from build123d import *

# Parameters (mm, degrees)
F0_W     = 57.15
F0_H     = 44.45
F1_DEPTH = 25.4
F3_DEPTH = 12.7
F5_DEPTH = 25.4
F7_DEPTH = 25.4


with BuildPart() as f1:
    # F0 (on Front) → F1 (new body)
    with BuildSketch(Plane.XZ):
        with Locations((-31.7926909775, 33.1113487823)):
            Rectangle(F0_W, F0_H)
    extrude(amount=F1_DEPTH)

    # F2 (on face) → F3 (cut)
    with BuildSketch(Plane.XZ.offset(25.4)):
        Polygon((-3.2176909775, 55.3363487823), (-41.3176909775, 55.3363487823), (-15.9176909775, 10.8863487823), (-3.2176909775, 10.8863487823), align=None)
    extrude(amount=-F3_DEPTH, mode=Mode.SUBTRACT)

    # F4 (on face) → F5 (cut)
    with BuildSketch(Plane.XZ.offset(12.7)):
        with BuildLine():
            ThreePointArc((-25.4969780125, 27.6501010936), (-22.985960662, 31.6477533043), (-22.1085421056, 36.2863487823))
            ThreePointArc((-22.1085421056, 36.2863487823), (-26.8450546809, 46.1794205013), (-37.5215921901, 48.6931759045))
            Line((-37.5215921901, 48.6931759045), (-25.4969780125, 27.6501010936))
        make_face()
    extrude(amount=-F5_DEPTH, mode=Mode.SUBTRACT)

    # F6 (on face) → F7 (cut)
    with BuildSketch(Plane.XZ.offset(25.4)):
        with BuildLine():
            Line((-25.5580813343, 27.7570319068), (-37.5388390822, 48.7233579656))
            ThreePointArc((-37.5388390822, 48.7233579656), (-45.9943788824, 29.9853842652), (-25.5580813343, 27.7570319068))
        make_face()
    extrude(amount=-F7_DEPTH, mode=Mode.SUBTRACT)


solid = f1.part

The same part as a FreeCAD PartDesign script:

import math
import FreeCAD as App
import Part
import Sketcher

V = App.Vector
Q = App.Units.Quantity


def add_polygon(sketch, points):
    """Adds a closed chain of lines whose ends are joined by coincident constraints."""
    first, n = sketch.GeometryCount, len(points)
    for a, b in zip(points, points[1:] + points[:1]):
        sketch.addGeometry(Part.LineSegment(App.Vector(*a, 0), App.Vector(*b, 0)), False)
    for i in range(n):
        sketch.addConstraint(Sketcher.Constraint("Coincident", first + i, 2, first + (i + 1) % n, 1))

doc = App.newDocument("Part")
body = doc.addObject("PartDesign::Body", "Body")

# Sketch on XZ plane
sketch1 = doc.addObject("Sketcher::SketchObject", "Sketch")
body.addObject(sketch1)
sketch1.AttachmentSupport = (doc.XZ_Plane, [""])
sketch1.MapMode = "FlatFace"
add_polygon(sketch1, [(-60.367691, 55.336349), (-60.367691, 10.886349), (-3.217691, 10.886349), (-3.217691, 55.336349)])  # lines 0-3
sketch1.addConstraint([
    Sketcher.Constraint("Vertical", 0),
    Sketcher.Constraint("Horizontal", 1),
    Sketcher.Constraint("Vertical", 2),
    Sketcher.Constraint("Horizontal", 3),
    Sketcher.Constraint("DistanceX", 1, 1, 1, 2, Q("2.25 in")),
    Sketcher.Constraint("DistanceY", 0, 2, 0, 1, Q("1.75 in")),
    Sketcher.Constraint("DistanceX", 0, 2, -1, 1, 60.367691),
    Sketcher.Constraint("DistanceY", -1, 1, 0, 2, 10.886349),
])
pad1 = doc.addObject("PartDesign::Pad", "Pad")
body.addObject(pad1)
pad1.Profile = sketch1
pad1.Length = Q("1 in")

# Sketch on XZ plane
sketch2 = doc.addObject("Sketcher::SketchObject", "Sketch001")
body.addObject(sketch2)
sketch2.AttachmentSupport = (doc.XZ_Plane, [""])
sketch2.MapMode = "FlatFace"
sketch2.AttachmentOffset = App.Placement(V(0, 0, 1 * 25.4), App.Rotation())
add_polygon(sketch2, [(-3.217691, 55.336349), (-41.317691, 55.336349), (-15.917691, 10.886349), (-3.217691, 10.886349)])  # lines 0-3
sketch2.addConstraint([
    Sketcher.Constraint("Horizontal", 0),
    Sketcher.Constraint("Horizontal", 2),
    Sketcher.Constraint("Vertical", 3),
    Sketcher.Constraint("DistanceX", 0, 2, 0, 1, Q("1.5 in")),
    Sketcher.Constraint("DistanceX", 2, 1, 2, 2, Q("0.5 in")),
    Sketcher.Constraint("DistanceY", 3, 1, 3, 2, Q("1.75 in")),
    Sketcher.Constraint("DistanceX", 0, 2, -1, 1, 41.317691),
    Sketcher.Constraint("DistanceY", -1, 1, 0, 2, 55.336349),
])
pocket1 = doc.addObject("PartDesign::Pocket", "Pocket")
body.addObject(pocket1)
pocket1.Profile = sketch2
pocket1.Length = Q("0.5 in")

# Sketch on XZ plane
sketch3 = doc.addObject("Sketcher::SketchObject", "Sketch002")
body.addObject(sketch3)
sketch3.AttachmentSupport = (doc.XZ_Plane, [""])
sketch3.MapMode = "FlatFace"
sketch3.AttachmentOffset = App.Placement(V(0, 0, 0.5 * 25.4), App.Rotation())
sketch3.addGeometry([
    Part.ArcOfCircle(Part.Circle(V(-34.808542, 36.286349, 0), V(0, 0, 1), 12.7), math.radians(-42.845167), math.radians(0)),
    Part.ArcOfCircle(Part.Circle(V(-34.808542, 36.286349, 0), V(0, 0, 1), 12.7), math.radians(0), math.radians(102.33493)),
    Part.LineSegment(V(-37.521592, 48.693176, 0), V(-25.496978, 27.650101, 0)),
], False)
sketch3.addConstraint([
    Sketcher.Constraint("Tangent", 0, 2, 1, 1),
    Sketcher.Constraint("Coincident", 1, 2, 2, 1),
    Sketcher.Constraint("Coincident", 2, 2, 0, 1),
    Sketcher.Constraint("Equal", 0, 1),
    Sketcher.Constraint("Horizontal", 1, 3, 0, 2),
    Sketcher.Constraint("Radius", 0, Q("0.5 in")),
    Sketcher.Constraint("DistanceY", -1, 1, 2, 2, 27.650101),
    Sketcher.Constraint("DistanceY", -1, 1, 0, 3, 36.286349),
    Sketcher.Constraint("DistanceX", 2, 2, -1, 1, 25.496978),
    Sketcher.Constraint("DistanceX", 1, 2, 0, 3, 2.71305),
])
pocket2 = doc.addObject("PartDesign::Pocket", "Pocket001")
body.addObject(pocket2)
pocket2.Profile = sketch3
pocket2.Length = Q("1 in")

# Sketch on XZ plane
sketch4 = doc.addObject("Sketcher::SketchObject", "Sketch003")
body.addObject(sketch4)
sketch4.AttachmentSupport = (doc.XZ_Plane, [""])
sketch4.MapMode = "FlatFace"
sketch4.AttachmentOffset = App.Placement(V(0, 0, 1 * 25.4), App.Rotation())
sketch4.addGeometry([
    Part.LineSegment(V(-25.558081, 27.757032, 0), V(-37.538839, 48.723358, 0)),
    Part.ArcOfCircle(Part.Circle(V(-34.967691, 36.286349, 0), V(0, 0, 1), 12.7), math.radians(101.680418), math.radians(317.809345)),
], False)
sketch4.addConstraint([
    Sketcher.Constraint("Coincident", 0, 1, 1, 2),
    Sketcher.Constraint("Coincident", 1, 1, 0, 2),
    Sketcher.Constraint("Radius", 1, Q("0.5 in")),
    Sketcher.Constraint("DistanceY", 0, 1, 1, 3, Q("0.3357999 in")),
    Sketcher.Constraint("Distance", 0, 24.147989),
    Sketcher.Constraint("DistanceX", 1, 3, -1, 1, 34.967691),
    Sketcher.Constraint("DistanceY", -1, 1, 1, 3, 36.286349),
])
pocket3 = doc.addObject("PartDesign::Pocket", "Pocket002")
body.addObject(pocket3)
pocket3.Profile = sketch4
pocket3.Length = Q("1 in")

doc.recompute()
